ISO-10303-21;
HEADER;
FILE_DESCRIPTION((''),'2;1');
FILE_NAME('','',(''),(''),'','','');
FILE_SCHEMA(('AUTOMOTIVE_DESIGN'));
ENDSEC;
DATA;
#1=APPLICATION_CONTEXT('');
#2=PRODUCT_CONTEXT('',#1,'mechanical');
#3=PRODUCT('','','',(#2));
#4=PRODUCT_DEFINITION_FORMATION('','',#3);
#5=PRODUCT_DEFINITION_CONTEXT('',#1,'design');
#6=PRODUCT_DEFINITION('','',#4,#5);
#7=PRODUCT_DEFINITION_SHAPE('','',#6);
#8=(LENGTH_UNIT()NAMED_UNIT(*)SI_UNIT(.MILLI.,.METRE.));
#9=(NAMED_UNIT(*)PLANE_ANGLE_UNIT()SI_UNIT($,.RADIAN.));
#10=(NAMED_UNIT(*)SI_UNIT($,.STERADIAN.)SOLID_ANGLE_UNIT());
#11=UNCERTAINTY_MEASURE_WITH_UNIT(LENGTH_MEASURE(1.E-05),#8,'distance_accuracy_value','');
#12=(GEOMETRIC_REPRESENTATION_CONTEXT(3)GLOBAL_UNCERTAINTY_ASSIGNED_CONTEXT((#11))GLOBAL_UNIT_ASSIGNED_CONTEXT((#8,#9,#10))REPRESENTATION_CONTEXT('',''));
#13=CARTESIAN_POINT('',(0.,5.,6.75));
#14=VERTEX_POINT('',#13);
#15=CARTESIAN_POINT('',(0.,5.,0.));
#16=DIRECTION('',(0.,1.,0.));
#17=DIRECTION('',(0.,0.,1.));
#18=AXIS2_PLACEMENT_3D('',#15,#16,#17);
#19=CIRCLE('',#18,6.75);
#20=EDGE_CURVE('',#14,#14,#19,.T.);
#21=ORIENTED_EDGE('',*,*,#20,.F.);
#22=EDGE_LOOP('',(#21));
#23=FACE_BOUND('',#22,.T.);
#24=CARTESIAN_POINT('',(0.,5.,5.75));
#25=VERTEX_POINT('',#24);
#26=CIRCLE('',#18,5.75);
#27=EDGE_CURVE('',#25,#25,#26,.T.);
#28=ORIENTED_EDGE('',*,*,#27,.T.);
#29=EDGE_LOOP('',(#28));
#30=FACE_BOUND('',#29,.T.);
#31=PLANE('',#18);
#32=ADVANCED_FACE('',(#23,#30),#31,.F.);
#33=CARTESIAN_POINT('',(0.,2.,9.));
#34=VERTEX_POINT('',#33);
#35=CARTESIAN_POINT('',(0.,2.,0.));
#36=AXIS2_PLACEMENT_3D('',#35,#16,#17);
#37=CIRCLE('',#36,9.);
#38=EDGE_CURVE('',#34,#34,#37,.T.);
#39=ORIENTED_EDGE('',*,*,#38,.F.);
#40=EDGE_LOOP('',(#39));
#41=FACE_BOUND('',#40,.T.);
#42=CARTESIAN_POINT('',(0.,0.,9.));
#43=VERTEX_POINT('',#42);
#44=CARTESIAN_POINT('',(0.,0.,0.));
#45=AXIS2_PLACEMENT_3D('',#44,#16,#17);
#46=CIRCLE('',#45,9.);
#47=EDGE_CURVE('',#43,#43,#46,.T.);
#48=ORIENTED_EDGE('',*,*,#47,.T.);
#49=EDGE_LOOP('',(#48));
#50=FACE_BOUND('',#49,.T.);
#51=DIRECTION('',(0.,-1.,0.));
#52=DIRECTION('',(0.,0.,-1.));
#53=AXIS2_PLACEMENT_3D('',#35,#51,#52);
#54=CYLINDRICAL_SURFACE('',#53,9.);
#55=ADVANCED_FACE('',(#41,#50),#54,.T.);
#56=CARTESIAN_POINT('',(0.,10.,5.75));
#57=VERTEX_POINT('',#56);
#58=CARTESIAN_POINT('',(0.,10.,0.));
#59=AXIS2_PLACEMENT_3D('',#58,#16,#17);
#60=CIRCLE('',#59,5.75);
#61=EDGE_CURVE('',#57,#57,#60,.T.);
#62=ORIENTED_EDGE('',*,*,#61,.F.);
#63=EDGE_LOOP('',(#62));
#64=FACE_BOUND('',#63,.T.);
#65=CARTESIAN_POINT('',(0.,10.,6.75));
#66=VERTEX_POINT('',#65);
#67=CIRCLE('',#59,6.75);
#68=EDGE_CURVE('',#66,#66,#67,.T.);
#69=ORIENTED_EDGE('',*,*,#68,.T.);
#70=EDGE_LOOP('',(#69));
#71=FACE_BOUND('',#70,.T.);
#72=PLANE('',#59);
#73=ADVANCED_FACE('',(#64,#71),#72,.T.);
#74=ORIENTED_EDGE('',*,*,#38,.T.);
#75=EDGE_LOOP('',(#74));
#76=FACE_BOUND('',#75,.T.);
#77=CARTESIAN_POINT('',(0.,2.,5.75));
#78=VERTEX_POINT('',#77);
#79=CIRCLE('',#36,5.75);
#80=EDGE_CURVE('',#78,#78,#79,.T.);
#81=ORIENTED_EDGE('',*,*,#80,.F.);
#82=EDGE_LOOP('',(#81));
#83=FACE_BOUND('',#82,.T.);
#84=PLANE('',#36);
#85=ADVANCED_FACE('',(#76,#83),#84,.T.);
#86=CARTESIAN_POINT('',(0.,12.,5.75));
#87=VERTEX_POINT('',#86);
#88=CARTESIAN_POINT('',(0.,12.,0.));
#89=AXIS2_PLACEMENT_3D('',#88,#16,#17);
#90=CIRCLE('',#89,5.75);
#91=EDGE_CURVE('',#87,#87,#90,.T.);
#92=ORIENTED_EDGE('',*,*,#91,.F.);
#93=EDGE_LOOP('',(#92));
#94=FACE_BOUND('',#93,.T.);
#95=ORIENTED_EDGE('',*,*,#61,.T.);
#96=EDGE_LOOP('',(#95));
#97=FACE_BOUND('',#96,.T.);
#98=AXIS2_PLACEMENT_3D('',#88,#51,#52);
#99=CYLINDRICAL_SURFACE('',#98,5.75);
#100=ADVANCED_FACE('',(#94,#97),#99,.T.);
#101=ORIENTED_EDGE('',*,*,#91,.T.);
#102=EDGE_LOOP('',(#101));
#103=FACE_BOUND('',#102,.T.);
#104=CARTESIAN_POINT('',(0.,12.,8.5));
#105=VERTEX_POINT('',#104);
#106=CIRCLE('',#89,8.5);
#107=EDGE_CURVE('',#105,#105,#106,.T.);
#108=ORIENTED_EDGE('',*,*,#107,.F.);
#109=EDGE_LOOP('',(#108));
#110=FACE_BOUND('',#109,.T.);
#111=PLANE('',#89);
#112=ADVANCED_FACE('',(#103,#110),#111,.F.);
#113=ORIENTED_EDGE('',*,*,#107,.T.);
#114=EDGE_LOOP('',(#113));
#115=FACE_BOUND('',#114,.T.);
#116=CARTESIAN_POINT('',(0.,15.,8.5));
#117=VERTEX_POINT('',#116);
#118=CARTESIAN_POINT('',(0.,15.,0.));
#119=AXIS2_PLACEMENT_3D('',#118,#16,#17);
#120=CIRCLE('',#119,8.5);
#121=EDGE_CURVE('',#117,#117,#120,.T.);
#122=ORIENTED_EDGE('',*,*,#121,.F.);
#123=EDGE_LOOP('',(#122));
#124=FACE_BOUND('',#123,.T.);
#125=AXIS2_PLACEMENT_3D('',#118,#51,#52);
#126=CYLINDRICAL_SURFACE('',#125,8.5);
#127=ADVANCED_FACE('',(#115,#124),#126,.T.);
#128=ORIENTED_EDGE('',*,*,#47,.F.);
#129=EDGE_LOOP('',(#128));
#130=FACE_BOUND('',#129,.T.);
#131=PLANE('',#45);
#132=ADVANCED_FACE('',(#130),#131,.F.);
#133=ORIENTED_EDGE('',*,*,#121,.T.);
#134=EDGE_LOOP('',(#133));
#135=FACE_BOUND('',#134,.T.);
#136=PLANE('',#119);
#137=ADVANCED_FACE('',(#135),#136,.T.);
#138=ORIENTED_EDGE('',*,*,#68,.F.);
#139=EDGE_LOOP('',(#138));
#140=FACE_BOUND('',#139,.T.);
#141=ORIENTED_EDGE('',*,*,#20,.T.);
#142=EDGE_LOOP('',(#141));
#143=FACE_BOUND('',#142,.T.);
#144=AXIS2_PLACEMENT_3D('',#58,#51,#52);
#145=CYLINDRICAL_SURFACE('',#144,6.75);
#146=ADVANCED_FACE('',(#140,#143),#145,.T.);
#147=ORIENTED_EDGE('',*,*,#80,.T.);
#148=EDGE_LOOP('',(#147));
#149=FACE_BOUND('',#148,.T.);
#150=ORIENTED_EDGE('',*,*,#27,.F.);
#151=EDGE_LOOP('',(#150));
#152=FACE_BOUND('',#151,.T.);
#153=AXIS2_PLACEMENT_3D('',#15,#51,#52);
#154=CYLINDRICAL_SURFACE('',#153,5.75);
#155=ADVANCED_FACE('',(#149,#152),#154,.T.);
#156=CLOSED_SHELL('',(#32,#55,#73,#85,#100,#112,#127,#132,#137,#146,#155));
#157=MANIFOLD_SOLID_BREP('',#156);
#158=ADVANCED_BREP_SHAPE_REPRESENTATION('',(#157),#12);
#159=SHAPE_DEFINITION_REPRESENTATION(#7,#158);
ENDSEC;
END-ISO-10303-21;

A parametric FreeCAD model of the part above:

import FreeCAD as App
import Part
import Sketcher

V = App.Vector

doc = App.newDocument("Part")
body = doc.addObject("PartDesign::Body", "Body")

sketch1 = doc.addObject("Sketcher::SketchObject", "Sketch")
body.addObject(sketch1)
sketch1.AttachmentSupport = (doc.XZ_Plane, [""])
sketch1.MapMode = "FlatFace"
sketch1.addGeometry(Part.Circle(V(0, 0, 0), V(0, 0, 1), 9), False)
sketch1.addConstraint([
    Sketcher.Constraint("Coincident", 0, 3, -1, 1),
    Sketcher.Constraint("Diameter", 0, 18.0),
])
pad1 = doc.addObject("PartDesign::Pad", "Pad")
body.addObject(pad1)
pad1.Profile = sketch1
pad1.Length = 2
pad1.Reversed = True

sketch2 = doc.addObject("Sketcher::SketchObject", "Sketch001")
body.addObject(sketch2)
sketch2.AttachmentSupport = (doc.XZ_Plane, [""])
sketch2.MapMode = "FlatFace"
sketch2.AttachmentOffset = App.Placement(V(0, 0, -2), App.Rotation())
sketch2.addGeometry(Part.Circle(V(0, 0, 0), V(0, 0, 1), 5.75), False)
sketch2.addConstraint([
    Sketcher.Constraint("Coincident", 0, 3, -1, 1),
    Sketcher.Constraint("Diameter", 0, 11.5),
])
pad2 = doc.addObject("PartDesign::Pad", "Pad001")
body.addObject(pad2)
pad2.Profile = sketch2
pad2.Length = 3
pad2.Reversed = True

sketch3 = doc.addObject("Sketcher::SketchObject", "Sketch002")
body.addObject(sketch3)
sketch3.AttachmentSupport = (doc.XZ_Plane, [""])
sketch3.MapMode = "FlatFace"
sketch3.AttachmentOffset = App.Placement(V(0, 0, -5), App.Rotation())
sketch3.addGeometry(Part.Circle(V(0, 0, 0), V(0, 0, 1), 6.75), False)
sketch3.addConstraint([
    Sketcher.Constraint("Coincident", 0, 3, -1, 1),
    Sketcher.Constraint("Diameter", 0, 13.5),
])
pad3 = doc.addObject("PartDesign::Pad", "Pad002")
body.addObject(pad3)
pad3.Profile = sketch3
pad3.Length = 5
pad3.Reversed = True

sketch4 = doc.addObject("Sketcher::SketchObject", "Sketch003")
body.addObject(sketch4)
sketch4.AttachmentSupport = (doc.XZ_Plane, [""])
sketch4.MapMode = "FlatFace"
sketch4.AttachmentOffset = App.Placement(V(0, 0, -10), App.Rotation())
sketch4.addGeometry(Part.Circle(V(0, 0, 0), V(0, 0, 1), 5.75), False)
sketch4.addConstraint([
    Sketcher.Constraint("Coincident", 0, 3, -1, 1),
    Sketcher.Constraint("Diameter", 0, 11.5),
])
pad4 = doc.addObject("PartDesign::Pad", "Pad003")
body.addObject(pad4)
pad4.Profile = sketch4
pad4.Length = 2
pad4.Reversed = True

sketch5 = doc.addObject("Sketcher::SketchObject", "Sketch004")
body.addObject(sketch5)
sketch5.AttachmentSupport = (doc.XZ_Plane, [""])
sketch5.MapMode = "FlatFace"
sketch5.AttachmentOffset = App.Placement(V(0, 0, -12), App.Rotation())
sketch5.addGeometry(Part.Circle(V(0, 0, 0), V(0, 0, 1), 8.5), False)
sketch5.addConstraint([
    Sketcher.Constraint("Coincident", 0, 3, -1, 1),
    Sketcher.Constraint("Diameter", 0, 17.0),
])
pad5 = doc.addObject("PartDesign::Pad", "Pad004")
body.addObject(pad5)
pad5.Profile = sketch5
pad5.Length = 3
pad5.Reversed = True

doc.recompute()
